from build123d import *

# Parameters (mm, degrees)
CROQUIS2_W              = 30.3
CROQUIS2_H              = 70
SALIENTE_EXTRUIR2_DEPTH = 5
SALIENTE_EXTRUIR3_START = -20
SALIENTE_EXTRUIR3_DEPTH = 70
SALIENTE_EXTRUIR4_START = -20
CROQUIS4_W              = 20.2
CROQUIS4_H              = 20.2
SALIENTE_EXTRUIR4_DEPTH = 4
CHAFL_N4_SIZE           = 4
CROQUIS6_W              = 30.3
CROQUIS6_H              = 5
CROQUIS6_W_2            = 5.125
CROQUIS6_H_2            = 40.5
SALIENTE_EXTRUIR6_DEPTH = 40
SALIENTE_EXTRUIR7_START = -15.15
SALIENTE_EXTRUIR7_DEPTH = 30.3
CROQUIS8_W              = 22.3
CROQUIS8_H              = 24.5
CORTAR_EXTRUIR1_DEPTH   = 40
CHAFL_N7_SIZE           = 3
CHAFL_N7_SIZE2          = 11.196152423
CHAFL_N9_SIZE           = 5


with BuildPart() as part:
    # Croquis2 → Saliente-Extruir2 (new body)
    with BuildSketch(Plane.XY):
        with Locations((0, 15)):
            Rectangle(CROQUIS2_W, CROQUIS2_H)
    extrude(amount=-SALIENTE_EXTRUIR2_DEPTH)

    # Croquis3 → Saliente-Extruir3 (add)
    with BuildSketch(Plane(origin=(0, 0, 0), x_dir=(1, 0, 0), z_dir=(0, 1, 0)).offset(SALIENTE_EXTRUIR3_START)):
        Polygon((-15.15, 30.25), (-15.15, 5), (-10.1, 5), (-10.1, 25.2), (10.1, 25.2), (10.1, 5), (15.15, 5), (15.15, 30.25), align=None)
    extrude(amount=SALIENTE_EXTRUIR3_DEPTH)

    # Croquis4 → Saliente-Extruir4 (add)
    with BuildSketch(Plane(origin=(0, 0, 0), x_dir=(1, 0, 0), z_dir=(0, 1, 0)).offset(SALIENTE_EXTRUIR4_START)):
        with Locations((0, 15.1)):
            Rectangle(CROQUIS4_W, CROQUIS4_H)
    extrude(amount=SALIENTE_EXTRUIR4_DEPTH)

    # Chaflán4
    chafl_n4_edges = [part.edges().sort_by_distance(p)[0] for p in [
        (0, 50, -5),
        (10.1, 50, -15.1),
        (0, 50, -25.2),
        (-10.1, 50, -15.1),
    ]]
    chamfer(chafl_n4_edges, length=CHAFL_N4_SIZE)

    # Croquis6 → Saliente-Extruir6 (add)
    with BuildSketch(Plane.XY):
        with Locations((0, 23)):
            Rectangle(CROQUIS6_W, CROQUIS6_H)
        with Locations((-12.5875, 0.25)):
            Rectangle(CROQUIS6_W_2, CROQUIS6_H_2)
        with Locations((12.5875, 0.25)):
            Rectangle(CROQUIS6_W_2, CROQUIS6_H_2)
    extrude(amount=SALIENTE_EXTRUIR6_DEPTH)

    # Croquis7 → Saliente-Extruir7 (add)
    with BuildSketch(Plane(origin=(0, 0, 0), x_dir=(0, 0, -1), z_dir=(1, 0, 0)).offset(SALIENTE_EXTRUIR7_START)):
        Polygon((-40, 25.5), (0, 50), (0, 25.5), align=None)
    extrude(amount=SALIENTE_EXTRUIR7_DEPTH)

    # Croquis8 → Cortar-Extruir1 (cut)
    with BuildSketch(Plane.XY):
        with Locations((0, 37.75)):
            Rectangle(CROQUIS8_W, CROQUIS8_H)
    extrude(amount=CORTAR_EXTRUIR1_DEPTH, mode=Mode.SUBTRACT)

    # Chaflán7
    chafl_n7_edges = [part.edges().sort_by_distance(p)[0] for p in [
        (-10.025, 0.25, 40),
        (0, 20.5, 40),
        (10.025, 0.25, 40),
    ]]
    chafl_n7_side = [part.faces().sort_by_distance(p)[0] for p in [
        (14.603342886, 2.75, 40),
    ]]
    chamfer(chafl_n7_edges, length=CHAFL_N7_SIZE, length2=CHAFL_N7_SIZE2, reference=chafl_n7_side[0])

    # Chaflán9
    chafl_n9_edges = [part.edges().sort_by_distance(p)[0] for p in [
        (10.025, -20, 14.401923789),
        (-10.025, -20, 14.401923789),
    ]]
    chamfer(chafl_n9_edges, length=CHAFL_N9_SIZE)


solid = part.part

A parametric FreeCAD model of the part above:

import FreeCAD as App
import Part
import Sketcher
from FreeCAD import Vector
Q = App.Units.Quantity


def edges_at(feature, points):
    """Names of the edges that pass closest to the given points."""
    edges = feature.Shape.Edges
    near = lambda p: min(range(len(edges)), key=lambda i: edges[i].distToShape(Part.Vertex(*p))[0])
    return sorted({f"Edge{near(p) + 1}" for p in points})

doc = App.newDocument("Part")
params = doc.addObject("Spreadsheet::Sheet", "Params")
for row, (alias, value) in enumerate([
    ("sketch1_height", "70 mm"),
    ("sketch1_width", "30.3 mm"),
    ("pad1_length", "5 mm"),
    ("sketch2_width", "20.2 mm"),
    ("sketch2_width2", "30.3 mm"),
    ("sketch2_height", "25.25 mm"),
    ("pad2_length", "70 mm"),
    ("sketch3_width", "20.2 mm"),
    ("pad3_length", "4 mm"),
    ("chamfer_size", "4 mm"),
    ("sketch4_width", "30.3 mm"),
    ("sketch4_height", "45.5 mm"),
    ("sketch4_height2", "40.5 mm"),
    ("sketch4_width2", "20.05 mm"),
    ("pad4_length", "40 mm"),
    ("sketch5_height", "40 mm"),
    ("sketch5_width", "24.5 mm"),
    ("pad5_length", "30.3 mm"),
    ("sketch6_width", "22.3 mm"),
    ("sketch6_height", "24.5 mm"),
    ("pocket1_length", "40 mm"),
    ("chamfer2_size", "3 mm"),
    ("chamfer2_size2", "11.196152 mm"),
    ("chamfer3_size", "5 mm"),
], start=1):
    params.set(f"A{row}", alias)
    params.set(f"B{row}", "=" + value)
    params.setAlias(f"B{row}", alias)

body = doc.addObject("PartDesign::Body", "Body")

sketch1 = body.newObject("Sketcher::SketchObject", "Sketch")
sketch1.AttachmentSupport = (doc.getObject("XY_Plane"), [""])
sketch1.MapMode = "FlatFace"
sketch1.addGeometry(Part.LineSegment(Vector(-15, 50, 0), Vector(-15, -20, 0)), False)
sketch1.addGeometry(Part.LineSegment(Vector(-15, -20, 0), Vector(15, -20, 0)), False)
sketch1.addGeometry(Part.LineSegment(Vector(15, -20, 0), Vector(15, 50, 0)), False)
sketch1.addGeometry(Part.LineSegment(Vector(15, 50, 0), Vector(-15, 50, 0)), False)
sketch1.addConstraint(Sketcher.Constraint("Coincident", 0, 2, 1, 1))
sketch1.addConstraint(Sketcher.Constraint("Coincident", 1, 2, 2, 1))
sketch1.addConstraint(Sketcher.Constraint("Coincident", 2, 2, 3, 1))
sketch1.addConstraint(Sketcher.Constraint("Coincident", 3, 2, 0, 1))
sketch1.addConstraint(Sketcher.Constraint("Vertical", 0))
sketch1.addConstraint(Sketcher.Constraint("Horizontal", 1))
sketch1.addConstraint(Sketcher.Constraint("Vertical", 2))
sketch1.addConstraint(Sketcher.Constraint("Horizontal", 3))
sketch1.addConstraint(Sketcher.Constraint("DistanceY", 0, 2, 0, 1, Q("70 mm")))
sketch1.addConstraint(Sketcher.Constraint("DistanceX", 1, 1, 1, 2, Q("30.3 mm")))
sketch1.addConstraint(Sketcher.Constraint("DistanceY", 0, 2, -1, 1, Q("20 mm")))
sketch1.addConstraint(Sketcher.Constraint("DistanceX", 0, 2, -1, 1, Q("15.15 mm")))
sketch1.setExpression("Constraints[8]", "Params.sketch1_height")
sketch1.setExpression("Constraints[9]", "Params.sketch1_width")
pad1 = body.newObject("PartDesign::Pad", "Pad")
pad1.Profile = sketch1
pad1.setExpression("Length", "Params.pad1_length")
pad1.Reversed = True

sketch2 = body.newObject("Sketcher::SketchObject", "Sketch001")
sketch2.AttachmentSupport = (doc.getObject("XZ_Plane"), [""])
sketch2.MapMode = "FlatFace"
sketch2.AttachmentOffset = App.Placement(Vector(0, 0, 20), App.Rotation())
sketch2.addGeometry(Part.LineSegment(Vector(-15, -30, 0), Vector(-15, -5, 0)), False)
sketch2.addGeometry(Part.LineSegment(Vector(-15, -5, 0), Vector(-10, -5, 0)), False)
sketch2.addGeometry(Part.LineSegment(Vector(-10, -5, 0), Vector(-10, -25, 0)), False)
sketch2.addGeometry(Part.LineSegment(Vector(-10, -25, 0), Vector(10, -25, 0)), False)
sketch2.addGeometry(Part.LineSegment(Vector(10, -25, 0), Vector(10, -5, 0)), False)
sketch2.addGeometry(Part.LineSegment(Vector(10, -5, 0), Vector(15, -5, 0)), False)
sketch2.addGeometry(Part.LineSegment(Vector(15, -5, 0), Vector(15, -30, 0)), False)
sketch2.addGeometry(Part.LineSegment(Vector(15, -30, 0), Vector(-15, -30, 0)), False)
sketch2.addConstraint(Sketcher.Constraint("Coincident", 0, 2, 1, 1))
sketch2.addConstraint(Sketcher.Constraint("Coincident", 1, 2, 2, 1))
sketch2.addConstraint(Sketcher.Constraint("Coincident", 2, 2, 3, 1))
sketch2.addConstraint(Sketcher.Constraint("Coincident", 3, 2, 4, 1))
sketch2.addConstraint(Sketcher.Constraint("Coincident", 4, 2, 5, 1))
sketch2.addConstraint(Sketcher.Constraint("Coincident", 5, 2, 6, 1))
sketch2.addConstraint(Sketcher.Constraint("Coincident", 6, 2, 7, 1))
sketch2.addConstraint(Sketcher.Constraint("Coincident", 7, 2, 0, 1))
sketch2.addConstraint(Sketcher.Constraint("Vertical", 0))
sketch2.addConstraint(Sketcher.Constraint("Horizontal", 1))
sketch2.addConstraint(Sketcher.Constraint("Vertical", 2))
sketch2.addConstraint(Sketcher.Constraint("Horizontal", 3))
sketch2.addConstraint(Sketcher.Constraint("Vertical", 4))
sketch2.addConstraint(Sketcher.Constraint("Horizontal", 5))
sketch2.addConstraint(Sketcher.Constraint("Vertical", 6))
sketch2.addConstraint(Sketcher.Constraint("Horizontal", 7))
sketch2.addConstraint(Sketcher.Constraint("Symmetric", 1, 2, 4, 2, -2))
sketch2.addConstraint(Sketcher.Constraint("Equal", 1, 5))
sketch2.addConstraint(Sketcher.Constraint("Equal", 3, 2))
sketch2.addConstraint(Sketcher.Constraint("DistanceX", 3, 1, 3, 2, Q("20.2 mm")))
sketch2.addConstraint(Sketcher.Constraint("DistanceX", 7, 2, 7, 1, Q("30.3 mm")))
sketch2.addConstraint(Sketcher.Constraint("DistanceY", 0, 2, -1, 1, Q("5 mm")))
sketch2.addConstraint(Sketcher.Constraint("DistanceY", 0, 1, 0, 2, Q("25.25 mm")))
sketch2.setExpression("Constraints[19]", "Params.sketch2_width")
sketch2.setExpression("Constraints[20]", "Params.sketch2_width2")
sketch2.setExpression("Constraints[22]", "Params.sketch2_height")
pad2 = body.newObject("PartDesign::Pad", "Pad001")
pad2.Profile = sketch2
pad2.setExpression("Length", "Params.pad2_length")
pad2.Reversed = True

sketch3 = body.newObject("Sketcher::SketchObject", "Sketch002")
sketch3.AttachmentSupport = (doc.getObject("XZ_Plane"), [""])
sketch3.MapMode = "FlatFace"
sketch3.AttachmentOffset = App.Placement(Vector(0, 0, 20), App.Rotation())
sketch3.addGeometry(Part.LineSegment(Vector(-10, -25, 0), Vector(-10, -5, 0)), False)
sketch3.addGeometry(Part.LineSegment(Vector(-10, -5, 0), Vector(10, -5, 0)), False)
sketch3.addGeometry(Part.LineSegment(Vector(10, -5, 0), Vector(10, -25, 0)), False)
sketch3.addGeometry(Part.LineSegment(Vector(10, -25, 0), Vector(-10, -25, 0)), False)
sketch3.addConstraint(Sketcher.Constraint("Coincident", 0, 2, 1, 1))
sketch3.addConstraint(Sketcher.Constraint("Coincident", 1, 2, 2, 1))
sketch3.addConstraint(Sketcher.Constraint("Coincident", 2, 2, 3, 1))
sketch3.addConstraint(Sketcher.Constraint("Coincident", 3, 2, 0, 1))
sketch3.addConstraint(Sketcher.Constraint("Vertical", 0))
sketch3.addConstraint(Sketcher.Constraint("Horizontal", 1))
sketch3.addConstraint(Sketcher.Constraint("Vertical", 2))
sketch3.addConstraint(Sketcher.Constraint("Horizontal", 3))
sketch3.addConstraint(Sketcher.Constraint("Equal", 3, 0))
sketch3.addConstraint(Sketcher.Constraint("DistanceX", 1, 1, 1, 2, Q("20.2 mm")))
sketch3.addConstraint(Sketcher.Constraint("DistanceY", 0, 2, -1, 1, Q("5 mm")))
sketch3.addConstraint(Sketcher.Constraint("DistanceX", 0, 2, -1, 1, Q("10.1 mm")))
sketch3.setExpression("Constraints[9]", "Params.sketch3_width")
pad3 = body.newObject("PartDesign::Pad", "Pad002")
pad3.Profile = sketch3
pad3.setExpression("Length", "Params.pad3_length")
pad3.Reversed = True
doc.recompute()

chamfer = body.newObject("PartDesign::Chamfer", "Chamfer")
chamfer.Base = (pad3, edges_at(pad3, [
    (0, 50, -5),
    (10.1, 50, -15.1),
    (0, 50, -25.2),
    (-10.1, 50, -15.1),
]))
chamfer.setExpression("Size", "Params.chamfer_size")

sketch4 = body.newObject("Sketcher::SketchObject", "Sketch003")
sketch4.AttachmentSupport = (doc.getObject("XY_Plane"), [""])
sketch4.MapMode = "FlatFace"
sketch4.addGeometry(Part.LineSegment(Vector(-15, 26, 0), Vector(-15, -20, 0)), False)
sketch4.addGeometry(Part.LineSegment(Vector(-15, -20, 0), Vector(-10, -20, 0)), False)
sketch4.addGeometry(Part.LineSegment(Vector(-10, -20, 0), Vector(-10, 20, 0)), False)
sketch4.addGeometry(Part.LineSegment(Vector(-10, 20, 0), Vector(10, 20, 0)), False)
sketch4.addGeometry(Part.LineSegment(Vector(10, 20, 0), Vector(10, -20, 0)), False)
sketch4.addGeometry(Part.LineSegment(Vector(10, -20, 0), Vector(15, -20, 0)), False)
sketch4.addGeometry(Part.LineSegment(Vector(15, -20, 0), Vector(15, 26, 0)), False)
sketch4.addGeometry(Part.LineSegment(Vector(15, 26, 0), Vector(-15, 26, 0)), False)
sketch4.addConstraint(Sketcher.Constraint("Coincident", 0, 2, 1, 1))
sketch4.addConstraint(Sketcher.Constraint("Coincident", 1, 2, 2, 1))
sketch4.addConstraint(Sketcher.Constraint("Coincident", 2, 2, 3, 1))
sketch4.addConstraint(Sketcher.Constraint("Coincident", 3, 2, 4, 1))
sketch4.addConstraint(Sketcher.Constraint("Coincident", 4, 2, 5, 1))
sketch4.addConstraint(Sketcher.Constraint("Coincident", 5, 2, 6, 1))
sketch4.addConstraint(Sketcher.Constraint("Coincident", 6, 2, 7, 1))
sketch4.addConstraint(Sketcher.Constraint("Coincident", 7, 2, 0, 1))
sketch4.addConstraint(Sketcher.Constraint("Vertical", 0))
sketch4.addConstraint(Sketcher.Constraint("Horizontal", 1))
sketch4.addConstraint(Sketcher.Constraint("Vertical", 2))
sketch4.addConstraint(Sketcher.Constraint("Horizontal", 3))
sketch4.addConstraint(Sketcher.Constraint("Vertical", 4))
sketch4.addConstraint(Sketcher.Constraint("Horizontal", 5))
sketch4.addConstraint(Sketcher.Constraint("Vertical", 6))
sketch4.addConstraint(Sketcher.Constraint("Horizontal", 7))
sketch4.addConstraint(Sketcher.Constraint("Symmetric", 1, 2, 4, 2, -2))
sketch4.addConstraint(Sketcher.Constraint("Equal", 1, 5))
sketch4.addConstraint(Sketcher.Constraint("DistanceX", 7, 2, 7, 1, Q("30.3 mm")))
sketch4.addConstraint(Sketcher.Constraint("DistanceY", 0, 2, 0, 1, Q("45.5 mm")))
sketch4.addConstraint(Sketcher.Constraint("DistanceY", 2, 1, 2, 2, Q("40.5 mm")))
sketch4.addConstraint(Sketcher.Constraint("DistanceY", 0, 2, -1, 1, Q("20 mm")))
sketch4.addConstraint(Sketcher.Constraint("DistanceX", 3, 1, 3, 2, Q("20.05 mm")))
sketch4.setExpression("Constraints[18]", "Params.sketch4_width")
sketch4.setExpression("Constraints[19]", "Params.sketch4_height")
sketch4.setExpression("Constraints[20]", "Params.sketch4_height2")
sketch4.setExpression("Constraints[22]", "Params.sketch4_width2")
pad4 = body.newObject("PartDesign::Pad", "Pad003")
pad4.Profile = sketch4
pad4.setExpression("Length", "Params.pad4_length")

sketch5 = body.newObject("Sketcher::SketchObject", "Sketch004")
sketch5.AttachmentSupport = (doc.getObject("YZ_Plane"), [""])
sketch5.MapMode = "FlatFace"
sketch5.AttachmentOffset = App.Placement(Vector(0, 0, -15.15), App.Rotation())
sketch5.addGeometry(Part.LineSegment(Vector(50, 0, 0), Vector(26, 40, 0)), False)
sketch5.addGeometry(Part.LineSegment(Vector(26, 40, 0), Vector(26, 0, 0)), False)
sketch5.addGeometry(Part.LineSegment(Vector(26, 0, 0), Vector(50, 0, 0)), False)
sketch5.addConstraint(Sketcher.Constraint("Coincident", 0, 2, 1, 1))
sketch5.addConstraint(Sketcher.Constraint("Coincident", 1, 2, 2, 1))
sketch5.addConstraint(Sketcher.Constraint("Coincident", 2, 2, 0, 1))
sketch5.addConstraint(Sketcher.Constraint("Vertical", 1))
sketch5.addConstraint(Sketcher.Constraint("Horizontal", 2))
sketch5.addConstraint(Sketcher.Constraint("PointOnObject", 1, 2, -1))
sketch5.addConstraint(Sketcher.Constraint("DistanceY", 1, 2, 1, 1, Q("40 mm")))
sketch5.addConstraint(Sketcher.Constraint("DistanceX", 2, 1, 2, 2, Q("24.5 mm")))
sketch5.addConstraint(Sketcher.Constraint("DistanceX", -1, 1, 2, 2, Q("50 mm")))
sketch5.setExpression("Constraints[6]", "Params.sketch5_height")
sketch5.setExpression("Constraints[7]", "Params.sketch5_width")
pad5 = body.newObject("PartDesign::Pad", "Pad004")
pad5.Profile = sketch5
pad5.setExpression("Length", "Params.pad5_length")

sketch6 = body.newObject("Sketcher::SketchObject", "Sketch005")
sketch6.AttachmentSupport = (doc.getObject("XY_Plane"), [""])
sketch6.MapMode = "FlatFace"
sketch6.addGeometry(Part.LineSegment(Vector(-11, 50, 0), Vector(-11, 26, 0)), False)
sketch6.addGeometry(Part.LineSegment(Vector(-11, 26, 0), Vector(11, 26, 0)), False)
sketch6.addGeometry(Part.LineSegment(Vector(11, 26, 0), Vector(11, 50, 0)), False)
sketch6.addGeometry(Part.LineSegment(Vector(11, 50, 0), Vector(-11, 50, 0)), False)
sketch6.addConstraint(Sketcher.Constraint("Coincident", 0, 2, 1, 1))
sketch6.addConstraint(Sketcher.Constraint("Coincident", 1, 2, 2, 1))
sketch6.addConstraint(Sketcher.Constraint("Coincident", 2, 2, 3, 1))
sketch6.addConstraint(Sketcher.Constraint("Coincident", 3, 2, 0, 1))
sketch6.addConstraint(Sketcher.Constraint("Vertical", 0))
sketch6.addConstraint(Sketcher.Constraint("Horizontal", 1))
sketch6.addConstraint(Sketcher.Constraint("Vertical", 2))
sketch6.addConstraint(Sketcher.Constraint("Horizontal", 3))
sketch6.addConstraint(Sketcher.Constraint("DistanceX", 1, 1, 1, 2, Q("22.3 mm")))
sketch6.addConstraint(Sketcher.Constraint("DistanceY", 0, 2, 0, 1, Q("24.5 mm")))
sketch6.addConstraint(Sketcher.Constraint("DistanceY", -1, 1, 2, 2, Q("50 mm")))
sketch6.addConstraint(Sketcher.Constraint("DistanceX", 0, 2, -1, 1, Q("11.15 mm")))
sketch6.setExpression("Constraints[8]", "Params.sketch6_width")
sketch6.setExpression("Constraints[9]", "Params.sketch6_height")
pocket1 = body.newObject("PartDesign::Pocket", "Pocket")
pocket1.Profile = sketch6
pocket1.setExpression("Length", "Params.pocket1_length")
pocket1.Reversed = True
doc.recompute()

chamfer2 = body.newObject("PartDesign::Chamfer", "Chamfer001")
chamfer2.Base = (pocket1, edges_at(pocket1, [(-10.025, 0.25, 40), (0, 20.5, 40), (10.025, 0.25, 40)]))
chamfer2.ChamferType = "Two distances"
chamfer2.setExpression("Size", "Params.chamfer2_size")
chamfer2.setExpression("Size2", "Params.chamfer2_size2")
chamfer2.FlipDirection = True
doc.recompute()

chamfer3 = body.newObject("PartDesign::Chamfer", "Chamfer002")
chamfer3.Base = (chamfer2, edges_at(chamfer2, [(10.025, -20, 14.402), (-10.025, -20, 14.402)]))
chamfer3.setExpression("Size", "Params.chamfer3_size")

doc.recompute()
